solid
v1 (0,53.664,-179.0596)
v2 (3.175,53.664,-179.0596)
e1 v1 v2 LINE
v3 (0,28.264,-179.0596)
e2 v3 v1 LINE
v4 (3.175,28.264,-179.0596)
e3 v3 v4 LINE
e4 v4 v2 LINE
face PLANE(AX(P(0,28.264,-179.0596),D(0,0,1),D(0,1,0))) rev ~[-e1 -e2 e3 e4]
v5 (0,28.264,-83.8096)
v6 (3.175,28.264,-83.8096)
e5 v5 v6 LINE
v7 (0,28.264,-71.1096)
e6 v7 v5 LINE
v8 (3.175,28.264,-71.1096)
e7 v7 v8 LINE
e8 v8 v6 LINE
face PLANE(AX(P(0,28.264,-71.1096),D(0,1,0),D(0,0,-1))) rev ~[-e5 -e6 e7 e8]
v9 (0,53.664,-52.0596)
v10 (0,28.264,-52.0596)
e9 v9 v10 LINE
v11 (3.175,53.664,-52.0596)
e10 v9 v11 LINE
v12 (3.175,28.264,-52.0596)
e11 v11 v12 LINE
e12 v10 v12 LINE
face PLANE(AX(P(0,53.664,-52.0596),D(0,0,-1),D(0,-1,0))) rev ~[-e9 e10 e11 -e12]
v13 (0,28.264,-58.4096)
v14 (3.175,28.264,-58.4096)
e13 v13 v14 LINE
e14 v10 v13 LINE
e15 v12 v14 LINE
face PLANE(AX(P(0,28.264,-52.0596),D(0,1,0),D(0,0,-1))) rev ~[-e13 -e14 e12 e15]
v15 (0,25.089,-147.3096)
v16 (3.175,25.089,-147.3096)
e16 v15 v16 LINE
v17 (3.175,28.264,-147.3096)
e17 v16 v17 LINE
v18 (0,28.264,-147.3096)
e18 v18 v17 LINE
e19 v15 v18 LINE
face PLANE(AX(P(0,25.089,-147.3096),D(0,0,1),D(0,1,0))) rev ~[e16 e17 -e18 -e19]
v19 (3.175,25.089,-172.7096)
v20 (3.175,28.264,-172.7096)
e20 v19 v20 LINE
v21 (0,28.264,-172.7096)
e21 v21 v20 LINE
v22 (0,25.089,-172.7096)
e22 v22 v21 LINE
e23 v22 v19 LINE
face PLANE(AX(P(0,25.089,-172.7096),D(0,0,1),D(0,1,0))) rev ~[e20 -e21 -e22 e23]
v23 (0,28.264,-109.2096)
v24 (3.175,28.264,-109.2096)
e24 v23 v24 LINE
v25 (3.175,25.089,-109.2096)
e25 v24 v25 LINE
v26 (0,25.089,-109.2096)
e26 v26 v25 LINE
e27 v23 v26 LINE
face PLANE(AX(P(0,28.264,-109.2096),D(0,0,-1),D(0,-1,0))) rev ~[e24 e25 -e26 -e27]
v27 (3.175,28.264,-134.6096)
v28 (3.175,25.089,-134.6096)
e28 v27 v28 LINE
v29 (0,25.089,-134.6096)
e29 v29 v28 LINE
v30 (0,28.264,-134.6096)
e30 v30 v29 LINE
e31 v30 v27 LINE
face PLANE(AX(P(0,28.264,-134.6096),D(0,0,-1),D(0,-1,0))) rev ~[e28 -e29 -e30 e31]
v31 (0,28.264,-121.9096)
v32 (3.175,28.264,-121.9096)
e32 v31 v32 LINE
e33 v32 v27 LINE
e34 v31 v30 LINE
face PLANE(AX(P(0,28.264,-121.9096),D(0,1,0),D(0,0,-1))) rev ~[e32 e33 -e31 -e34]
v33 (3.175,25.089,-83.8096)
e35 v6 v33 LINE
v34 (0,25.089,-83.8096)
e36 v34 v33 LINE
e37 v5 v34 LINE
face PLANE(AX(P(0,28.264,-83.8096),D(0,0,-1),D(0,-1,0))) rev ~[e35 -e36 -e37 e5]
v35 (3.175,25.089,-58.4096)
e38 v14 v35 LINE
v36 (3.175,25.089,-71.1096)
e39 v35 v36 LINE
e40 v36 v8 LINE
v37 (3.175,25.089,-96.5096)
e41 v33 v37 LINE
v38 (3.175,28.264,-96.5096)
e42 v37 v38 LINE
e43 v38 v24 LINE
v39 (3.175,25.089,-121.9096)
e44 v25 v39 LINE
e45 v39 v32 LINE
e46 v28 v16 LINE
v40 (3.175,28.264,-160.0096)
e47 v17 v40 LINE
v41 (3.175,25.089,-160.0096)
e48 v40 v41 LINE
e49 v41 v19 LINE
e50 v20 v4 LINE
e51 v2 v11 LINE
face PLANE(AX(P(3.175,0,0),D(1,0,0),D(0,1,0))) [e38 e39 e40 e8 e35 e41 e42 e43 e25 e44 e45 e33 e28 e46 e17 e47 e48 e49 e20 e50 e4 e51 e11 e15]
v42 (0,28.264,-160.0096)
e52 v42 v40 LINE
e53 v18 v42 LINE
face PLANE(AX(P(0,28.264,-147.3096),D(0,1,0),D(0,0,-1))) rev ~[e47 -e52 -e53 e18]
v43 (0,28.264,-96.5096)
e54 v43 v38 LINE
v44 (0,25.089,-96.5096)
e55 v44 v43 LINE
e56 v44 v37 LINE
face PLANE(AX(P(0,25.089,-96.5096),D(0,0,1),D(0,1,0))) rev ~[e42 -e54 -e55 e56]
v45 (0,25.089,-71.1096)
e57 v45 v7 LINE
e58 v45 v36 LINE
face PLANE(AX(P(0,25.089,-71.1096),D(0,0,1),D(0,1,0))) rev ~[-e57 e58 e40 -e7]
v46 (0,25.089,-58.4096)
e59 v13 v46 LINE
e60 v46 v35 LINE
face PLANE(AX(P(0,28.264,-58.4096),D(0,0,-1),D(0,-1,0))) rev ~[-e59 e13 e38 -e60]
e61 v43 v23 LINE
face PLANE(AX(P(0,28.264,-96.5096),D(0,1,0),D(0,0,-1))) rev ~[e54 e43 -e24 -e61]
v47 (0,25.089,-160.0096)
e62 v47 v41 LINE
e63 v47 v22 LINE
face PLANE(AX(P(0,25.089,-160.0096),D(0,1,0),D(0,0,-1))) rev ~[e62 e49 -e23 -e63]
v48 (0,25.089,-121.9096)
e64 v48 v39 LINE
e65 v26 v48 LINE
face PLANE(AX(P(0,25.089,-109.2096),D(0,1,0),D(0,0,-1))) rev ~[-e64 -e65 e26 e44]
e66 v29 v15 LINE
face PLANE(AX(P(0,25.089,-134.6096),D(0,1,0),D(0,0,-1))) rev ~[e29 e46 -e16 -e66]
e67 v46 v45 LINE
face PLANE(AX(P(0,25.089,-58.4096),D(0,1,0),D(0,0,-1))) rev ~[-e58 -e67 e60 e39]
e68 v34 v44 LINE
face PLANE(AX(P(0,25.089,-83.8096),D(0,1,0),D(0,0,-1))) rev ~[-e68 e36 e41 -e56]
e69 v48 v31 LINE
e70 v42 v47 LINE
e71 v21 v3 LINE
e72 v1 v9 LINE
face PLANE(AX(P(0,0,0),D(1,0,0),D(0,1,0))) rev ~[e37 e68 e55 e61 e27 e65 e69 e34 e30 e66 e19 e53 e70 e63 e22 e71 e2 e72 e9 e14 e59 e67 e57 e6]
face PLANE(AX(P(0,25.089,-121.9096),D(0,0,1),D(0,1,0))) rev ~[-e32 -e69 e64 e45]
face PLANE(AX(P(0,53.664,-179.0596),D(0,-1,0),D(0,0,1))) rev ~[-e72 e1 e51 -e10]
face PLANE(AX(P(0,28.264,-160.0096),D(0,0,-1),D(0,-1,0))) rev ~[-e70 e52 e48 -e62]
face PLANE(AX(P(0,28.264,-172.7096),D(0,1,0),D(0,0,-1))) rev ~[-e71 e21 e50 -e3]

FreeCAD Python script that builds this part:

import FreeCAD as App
import Part
import Sketcher
Q = App.Units.Quantity


def add_polygon(sketch, points):
    """Adds a closed chain of lines whose ends are joined by coincident constraints."""
    first, n = sketch.GeometryCount, len(points)
    for a, b in zip(points, points[1:] + points[:1]):
        sketch.addGeometry(Part.LineSegment(App.Vector(*a, 0), App.Vector(*b, 0)), False)
    for i in range(n):
        sketch.addConstraint(Sketcher.Constraint("Coincident", first + i, 2, first + (i + 1) % n, 1))

doc = App.newDocument("Part")
params = doc.addObject("Spreadsheet::Sheet", "Params")
for row, (alias, value) in enumerate([
    ("sketch1_width", "1 in"),
    ("sketch1_height", "5 in"),
    ("sketch1_height2", "0.5 in"),
    ("sketch1_width2", "0.125 in"),
    ("pad1_length", "0.125 in"),
], start=1):
    params.set(f"A{row}", alias)
    params.set(f"B{row}", "=" + value)
    params.setAlias(f"B{row}", alias)

body = doc.addObject("PartDesign::Body", "Body")

# Sketch on YZ plane
sketch1 = body.newObject("Sketcher::SketchObject", "Sketch")
sketch1.AttachmentSupport = (doc.getObject("YZ_Plane"), [""])
sketch1.MapMode = "FlatFace"
add_polygon(sketch1, [(53.664, -179.0596), (53.664, -52.0596), (28.264, -52.0596), (28.264, -58.4096), (25.089, -58.4096), (25.089, -71.1096), (28.264, -71.1096), (28.264, -83.8096), (25.089, -83.8096), (25.089, -96.5096), (28.264, -96.5096), (28.264, -109.2096), (25.089, -109.2096), (25.089, -121.9096), (28.264, -121.9096), (28.264, -134.6096), (25.089, -134.6096), (25.089, -147.3096), (28.264, -147.3096), (28.264, -160.0096), (25.089, -160.0096), (25.089, -172.7096), (28.264, -172.7096), (28.264, -179.0596)])  # lines 0-23
sketch1.addConstraint(Sketcher.Constraint("Vertical", 0))
sketch1.addConstraint(Sketcher.Constraint("Horizontal", 1))
sketch1.addConstraint(Sketcher.Constraint("Vertical", 2))
sketch1.addConstraint(Sketcher.Constraint("Horizontal", 3))
sketch1.addConstraint(Sketcher.Constraint("Vertical", 4))
sketch1.addConstraint(Sketcher.Constraint("Horizontal", 5))
sketch1.addConstraint(Sketcher.Constraint("Vertical", 6))
sketch1.addConstraint(Sketcher.Constraint("Horizontal", 7))
sketch1.addConstraint(Sketcher.Constraint("Vertical", 8))
sketch1.addConstraint(Sketcher.Constraint("Horizontal", 9))
sketch1.addConstraint(Sketcher.Constraint("Vertical", 10))
sketch1.addConstraint(Sketcher.Constraint("Horizontal", 11))
sketch1.addConstraint(Sketcher.Constraint("Vertical", 12))
sketch1.addConstraint(Sketcher.Constraint("Horizontal", 13))
sketch1.addConstraint(Sketcher.Constraint("Vertical", 14))
sketch1.addConstraint(Sketcher.Constraint("Horizontal", 15))
sketch1.addConstraint(Sketcher.Constraint("Vertical", 16))
sketch1.addConstraint(Sketcher.Constraint("Horizontal", 17))
sketch1.addConstraint(Sketcher.Constraint("Vertical", 18))
sketch1.addConstraint(Sketcher.Constraint("Horizontal", 19))
sketch1.addConstraint(Sketcher.Constraint("Vertical", 20))
sketch1.addConstraint(Sketcher.Constraint("Horizontal", 21))
sketch1.addConstraint(Sketcher.Constraint("Vertical", 22))
sketch1.addConstraint(Sketcher.Constraint("Horizontal", 23))
sketch1.addConstraint(Sketcher.Constraint("Vertical", 2, 2, 5, 2))
sketch1.addConstraint(Sketcher.Constraint("Vertical", 4, 2, 7, 2))
sketch1.addConstraint(Sketcher.Constraint("Vertical", 6, 2, 9, 2))
sketch1.addConstraint(Sketcher.Constraint("Vertical", 8, 2, 11, 2))
sketch1.addConstraint(Sketcher.Constraint("Vertical", 10, 2, 13, 2))
sketch1.addConstraint(Sketcher.Constraint("Vertical", 12, 2, 15, 2))
sketch1.addConstraint(Sketcher.Constraint("Vertical", 14, 2, 17, 2))
sketch1.addConstraint(Sketcher.Constraint("Vertical", 16, 2, 19, 2))
sketch1.addConstraint(Sketcher.Constraint("Vertical", 18, 2, 21, 2))
sketch1.addConstraint(Sketcher.Constraint("Equal", 4, 6))
sketch1.addConstraint(Sketcher.Constraint("Equal", 6, 8))
sketch1.addConstraint(Sketcher.Constraint("Equal", 8, 10))
sketch1.addConstraint(Sketcher.Constraint("Equal", 10, 12))
sketch1.addConstraint(Sketcher.Constraint("Equal", 12, 14))
sketch1.addConstraint(Sketcher.Constraint("Equal", 14, 16))
sketch1.addConstraint(Sketcher.Constraint("Equal", 16, 18))
sketch1.addConstraint(Sketcher.Constraint("Equal", 18, 20))
sketch1.addConstraint(Sketcher.Constraint("Equal", 2, 22))
sketch1.addConstraint(Sketcher.Constraint("DistanceX", 1, 2, 1, 1, Q("1 in")))
sketch1.addConstraint(Sketcher.Constraint("DistanceY", 0, 1, 0, 2, Q("5 in")))
sketch1.addConstraint(Sketcher.Constraint("DistanceY", 4, 2, 4, 1, Q("0.5 in")))
sketch1.addConstraint(Sketcher.Constraint("DistanceX", 3, 2, 3, 1, Q("0.125 in")))
sketch1.addConstraint(Sketcher.Constraint("DistanceY", 0, 2, -1, 1, Q("2.0496 in")))
sketch1.addConstraint(Sketcher.Constraint("DistanceX", -1, 1, 0, 2, Q("53.664 mm")))
sketch1.setExpression("Constraints[66]", "Params.sketch1_width")
sketch1.setExpression("Constraints[67]", "Params.sketch1_height")
sketch1.setExpression("Constraints[68]", "Params.sketch1_height2")
sketch1.setExpression("Constraints[69]", "Params.sketch1_width2")
pad1 = body.newObject("PartDesign::Pad", "Pad")
pad1.Profile = sketch1
pad1.setExpression("Length", "Params.pad1_length")

doc.recompute()
